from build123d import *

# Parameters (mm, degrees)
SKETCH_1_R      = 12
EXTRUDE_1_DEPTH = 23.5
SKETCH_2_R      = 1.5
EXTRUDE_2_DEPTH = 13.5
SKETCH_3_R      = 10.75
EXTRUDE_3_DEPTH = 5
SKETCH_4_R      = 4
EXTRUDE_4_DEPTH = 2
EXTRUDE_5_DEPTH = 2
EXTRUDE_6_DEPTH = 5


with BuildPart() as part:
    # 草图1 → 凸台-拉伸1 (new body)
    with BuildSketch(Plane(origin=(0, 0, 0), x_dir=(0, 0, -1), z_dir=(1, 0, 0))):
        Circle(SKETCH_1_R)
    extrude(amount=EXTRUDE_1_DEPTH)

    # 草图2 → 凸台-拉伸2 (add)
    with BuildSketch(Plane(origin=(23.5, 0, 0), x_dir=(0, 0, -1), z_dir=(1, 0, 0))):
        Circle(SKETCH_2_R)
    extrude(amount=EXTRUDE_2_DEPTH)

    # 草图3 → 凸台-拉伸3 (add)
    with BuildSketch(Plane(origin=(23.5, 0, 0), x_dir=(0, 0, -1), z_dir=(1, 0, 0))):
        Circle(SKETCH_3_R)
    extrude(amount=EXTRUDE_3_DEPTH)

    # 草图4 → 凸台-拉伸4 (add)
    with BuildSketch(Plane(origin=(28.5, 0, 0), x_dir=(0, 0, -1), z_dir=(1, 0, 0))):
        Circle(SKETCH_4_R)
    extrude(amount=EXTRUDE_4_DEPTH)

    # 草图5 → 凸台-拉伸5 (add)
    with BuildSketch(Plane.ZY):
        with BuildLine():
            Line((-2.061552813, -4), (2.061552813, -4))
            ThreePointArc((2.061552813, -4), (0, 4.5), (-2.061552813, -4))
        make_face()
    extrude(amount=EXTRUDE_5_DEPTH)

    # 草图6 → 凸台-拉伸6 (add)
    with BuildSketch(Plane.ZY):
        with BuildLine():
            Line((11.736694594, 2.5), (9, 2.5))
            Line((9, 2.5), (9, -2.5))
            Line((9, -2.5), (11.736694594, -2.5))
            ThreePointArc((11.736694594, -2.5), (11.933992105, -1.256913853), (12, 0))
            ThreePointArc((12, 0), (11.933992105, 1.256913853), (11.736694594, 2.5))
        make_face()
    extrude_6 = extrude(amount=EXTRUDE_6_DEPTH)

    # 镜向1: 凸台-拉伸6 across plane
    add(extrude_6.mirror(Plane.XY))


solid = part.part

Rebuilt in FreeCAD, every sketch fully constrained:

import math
import FreeCAD as App
import Part
import Sketcher

V = App.Vector

doc = App.newDocument("Part")
body = doc.addObject("PartDesign::Body", "Body")

# Sketch on YZ plane
sketch1 = body.newObject("Sketcher::SketchObject", "Sketch")
sketch1.AttachmentSupport = (doc.getObject("YZ_Plane"), [""])
sketch1.MapMode = "FlatFace"
sketch1.addGeometry(Part.Circle(V(0, 0, 0), V(0, 0, 1), 12), False)
sketch1.addConstraint(Sketcher.Constraint("Coincident", 0, 3, -1, 1))
sketch1.addConstraint(Sketcher.Constraint("Diameter", 0, 24.0))
pad1 = body.newObject("PartDesign::Pad", "Pad")
pad1.Profile = sketch1
pad1.Length = 23.5

# Sketch on YZ plane
sketch2 = body.newObject("Sketcher::SketchObject", "Sketch001")
sketch2.AttachmentSupport = (doc.getObject("YZ_Plane"), [""])
sketch2.MapMode = "FlatFace"
sketch2.AttachmentOffset = App.Placement(V(0, 0, 23.5), App.Rotation())
sketch2.addGeometry(Part.Circle(V(0, 0, 0), V(0, 0, 1), 1.5), False)
sketch2.addConstraint(Sketcher.Constraint("Coincident", 0, 3, -1, 1))
sketch2.addConstraint(Sketcher.Constraint("Diameter", 0, 3.0))
pad2 = body.newObject("PartDesign::Pad", "Pad001")
pad2.Profile = sketch2
pad2.Length = 13.5

# Sketch on YZ plane
sketch3 = body.newObject("Sketcher::SketchObject", "Sketch002")
sketch3.AttachmentSupport = (doc.getObject("YZ_Plane"), [""])
sketch3.MapMode = "FlatFace"
sketch3.AttachmentOffset = App.Placement(V(0, 0, 23.5), App.Rotation())
sketch3.addGeometry(Part.Circle(V(0, 0, 0), V(0, 0, 1), 10.75), False)
sketch3.addConstraint(Sketcher.Constraint("Coincident", 0, 3, -1, 1))
sketch3.addConstraint(Sketcher.Constraint("Diameter", 0, 21.5))
pad3 = body.newObject("PartDesign::Pad", "Pad002")
pad3.Profile = sketch3
pad3.Length = 5

# Sketch on YZ plane
sketch4 = body.newObject("Sketcher::SketchObject", "Sketch003")
sketch4.AttachmentSupport = (doc.getObject("YZ_Plane"), [""])
sketch4.MapMode = "FlatFace"
sketch4.AttachmentOffset = App.Placement(V(0, 0, 28.5), App.Rotation())
sketch4.addGeometry(Part.Circle(V(0, 0, 0), V(0, 0, 1), 4), False)
sketch4.addConstraint(Sketcher.Constraint("Coincident", 0, 3, -1, 1))
sketch4.addConstraint(Sketcher.Constraint("Diameter", 0, 8.0))
pad4 = body.newObject("PartDesign::Pad", "Pad003")
pad4.Profile = sketch4
pad4.Length = 2

# Sketch on YZ plane
sketch5 = body.newObject("Sketcher::SketchObject", "Sketch004")
sketch5.AttachmentSupport = (doc.getObject("YZ_Plane"), [""])
sketch5.MapMode = "FlatFace"
sketch5.addGeometry(Part.LineSegment(V(-4, -2.061553, 0), V(-4, 2.061553, 0)), False)
sketch5.addGeometry(Part.ArcOfCircle(Part.Circle(V(0, 0, 0), V(0, 0, 1), 4.5), math.radians(-152.733956), math.radians(152.733956)), False)
sketch5.addConstraint(Sketcher.Constraint("Coincident", 0, 1, 1, 1))
sketch5.addConstraint(Sketcher.Constraint("Coincident", 1, 2, 0, 2))
sketch5.addConstraint(Sketcher.Constraint("Vertical", 0))
sketch5.addConstraint(Sketcher.Constraint("Coincident", 1, 3, -1, 1))
sketch5.addConstraint(Sketcher.Constraint("Radius", 1, 4.5))
sketch5.addConstraint(Sketcher.Constraint("DistanceX", 0, 1, -1, 1, 4.0))
pad5 = body.newObject("PartDesign::Pad", "Pad004")
pad5.Profile = sketch5
pad5.Length = 2
pad5.Reversed = True

# Sketch on YZ plane
sketch6 = body.newObject("Sketcher::SketchObject", "Sketch005")
sketch6.AttachmentSupport = (doc.getObject("YZ_Plane"), [""])
sketch6.MapMode = "FlatFace"
sketch6.addGeometry(Part.LineSegment(V(2.5, 11.736695, 0), V(2.5, 9, 0)), False)
sketch6.addGeometry(Part.LineSegment(V(2.5, 9, 0), V(-2.5, 9, 0)), False)
sketch6.addGeometry(Part.LineSegment(V(-2.5, 9, 0), V(-2.5, 11.736695, 0)), False)
sketch6.addGeometry(Part.ArcOfCircle(Part.Circle(V(0, 0, 0), V(0, 0, 1), 12), math.radians(90), math.radians(102.024699)), False)
sketch6.addGeometry(Part.ArcOfCircle(Part.Circle(V(0, 0, 0), V(0, 0, 1), 12), math.radians(77.975301), math.radians(90)), False)
sketch6.addConstraint(Sketcher.Constraint("Coincident", 0, 2, 1, 1))
sketch6.addConstraint(Sketcher.Constraint("Coincident", 1, 2, 2, 1))
sketch6.addConstraint(Sketcher.Constraint("Coincident", 2, 2, 3, 2))
sketch6.addConstraint(Sketcher.Constraint("Tangent", 3, 1, 4, 2))
sketch6.addConstraint(Sketcher.Constraint("Coincident", 4, 1, 0, 1))
sketch6.addConstraint(Sketcher.Constraint("Vertical", 0))
sketch6.addConstraint(Sketcher.Constraint("Horizontal", 1))
sketch6.addConstraint(Sketcher.Constraint("Vertical", 2))
sketch6.addConstraint(Sketcher.Constraint("Coincident", 3, 3, -1, 1))
sketch6.addConstraint(Sketcher.Constraint("Equal", 3, 4))
sketch6.addConstraint(Sketcher.Constraint("PointOnObject", 3, 1, -2))
sketch6.addConstraint(Sketcher.Constraint("Horizontal", 2, 2, 4, 1))
sketch6.addConstraint(Sketcher.Constraint("Radius", 3, 12.0))
sketch6.addConstraint(Sketcher.Constraint("DistanceX", 1, 2, 1, 1, 5.0))
sketch6.addConstraint(Sketcher.Constraint("DistanceY", -1, 1, 0, 2, 9.0))
pad6 = body.newObject("PartDesign::Pad", "Pad005")
pad6.Profile = sketch6
pad6.Length = 5
pad6.Reversed = True
doc.recompute()

mirrored = body.newObject("PartDesign::Mirrored", "Mirrored")
mirrored.Originals = [pad6]
mirrored.MirrorPlane = (doc.getObject("XY_Plane"), [""])
body.Tip = mirrored

doc.recompute()
